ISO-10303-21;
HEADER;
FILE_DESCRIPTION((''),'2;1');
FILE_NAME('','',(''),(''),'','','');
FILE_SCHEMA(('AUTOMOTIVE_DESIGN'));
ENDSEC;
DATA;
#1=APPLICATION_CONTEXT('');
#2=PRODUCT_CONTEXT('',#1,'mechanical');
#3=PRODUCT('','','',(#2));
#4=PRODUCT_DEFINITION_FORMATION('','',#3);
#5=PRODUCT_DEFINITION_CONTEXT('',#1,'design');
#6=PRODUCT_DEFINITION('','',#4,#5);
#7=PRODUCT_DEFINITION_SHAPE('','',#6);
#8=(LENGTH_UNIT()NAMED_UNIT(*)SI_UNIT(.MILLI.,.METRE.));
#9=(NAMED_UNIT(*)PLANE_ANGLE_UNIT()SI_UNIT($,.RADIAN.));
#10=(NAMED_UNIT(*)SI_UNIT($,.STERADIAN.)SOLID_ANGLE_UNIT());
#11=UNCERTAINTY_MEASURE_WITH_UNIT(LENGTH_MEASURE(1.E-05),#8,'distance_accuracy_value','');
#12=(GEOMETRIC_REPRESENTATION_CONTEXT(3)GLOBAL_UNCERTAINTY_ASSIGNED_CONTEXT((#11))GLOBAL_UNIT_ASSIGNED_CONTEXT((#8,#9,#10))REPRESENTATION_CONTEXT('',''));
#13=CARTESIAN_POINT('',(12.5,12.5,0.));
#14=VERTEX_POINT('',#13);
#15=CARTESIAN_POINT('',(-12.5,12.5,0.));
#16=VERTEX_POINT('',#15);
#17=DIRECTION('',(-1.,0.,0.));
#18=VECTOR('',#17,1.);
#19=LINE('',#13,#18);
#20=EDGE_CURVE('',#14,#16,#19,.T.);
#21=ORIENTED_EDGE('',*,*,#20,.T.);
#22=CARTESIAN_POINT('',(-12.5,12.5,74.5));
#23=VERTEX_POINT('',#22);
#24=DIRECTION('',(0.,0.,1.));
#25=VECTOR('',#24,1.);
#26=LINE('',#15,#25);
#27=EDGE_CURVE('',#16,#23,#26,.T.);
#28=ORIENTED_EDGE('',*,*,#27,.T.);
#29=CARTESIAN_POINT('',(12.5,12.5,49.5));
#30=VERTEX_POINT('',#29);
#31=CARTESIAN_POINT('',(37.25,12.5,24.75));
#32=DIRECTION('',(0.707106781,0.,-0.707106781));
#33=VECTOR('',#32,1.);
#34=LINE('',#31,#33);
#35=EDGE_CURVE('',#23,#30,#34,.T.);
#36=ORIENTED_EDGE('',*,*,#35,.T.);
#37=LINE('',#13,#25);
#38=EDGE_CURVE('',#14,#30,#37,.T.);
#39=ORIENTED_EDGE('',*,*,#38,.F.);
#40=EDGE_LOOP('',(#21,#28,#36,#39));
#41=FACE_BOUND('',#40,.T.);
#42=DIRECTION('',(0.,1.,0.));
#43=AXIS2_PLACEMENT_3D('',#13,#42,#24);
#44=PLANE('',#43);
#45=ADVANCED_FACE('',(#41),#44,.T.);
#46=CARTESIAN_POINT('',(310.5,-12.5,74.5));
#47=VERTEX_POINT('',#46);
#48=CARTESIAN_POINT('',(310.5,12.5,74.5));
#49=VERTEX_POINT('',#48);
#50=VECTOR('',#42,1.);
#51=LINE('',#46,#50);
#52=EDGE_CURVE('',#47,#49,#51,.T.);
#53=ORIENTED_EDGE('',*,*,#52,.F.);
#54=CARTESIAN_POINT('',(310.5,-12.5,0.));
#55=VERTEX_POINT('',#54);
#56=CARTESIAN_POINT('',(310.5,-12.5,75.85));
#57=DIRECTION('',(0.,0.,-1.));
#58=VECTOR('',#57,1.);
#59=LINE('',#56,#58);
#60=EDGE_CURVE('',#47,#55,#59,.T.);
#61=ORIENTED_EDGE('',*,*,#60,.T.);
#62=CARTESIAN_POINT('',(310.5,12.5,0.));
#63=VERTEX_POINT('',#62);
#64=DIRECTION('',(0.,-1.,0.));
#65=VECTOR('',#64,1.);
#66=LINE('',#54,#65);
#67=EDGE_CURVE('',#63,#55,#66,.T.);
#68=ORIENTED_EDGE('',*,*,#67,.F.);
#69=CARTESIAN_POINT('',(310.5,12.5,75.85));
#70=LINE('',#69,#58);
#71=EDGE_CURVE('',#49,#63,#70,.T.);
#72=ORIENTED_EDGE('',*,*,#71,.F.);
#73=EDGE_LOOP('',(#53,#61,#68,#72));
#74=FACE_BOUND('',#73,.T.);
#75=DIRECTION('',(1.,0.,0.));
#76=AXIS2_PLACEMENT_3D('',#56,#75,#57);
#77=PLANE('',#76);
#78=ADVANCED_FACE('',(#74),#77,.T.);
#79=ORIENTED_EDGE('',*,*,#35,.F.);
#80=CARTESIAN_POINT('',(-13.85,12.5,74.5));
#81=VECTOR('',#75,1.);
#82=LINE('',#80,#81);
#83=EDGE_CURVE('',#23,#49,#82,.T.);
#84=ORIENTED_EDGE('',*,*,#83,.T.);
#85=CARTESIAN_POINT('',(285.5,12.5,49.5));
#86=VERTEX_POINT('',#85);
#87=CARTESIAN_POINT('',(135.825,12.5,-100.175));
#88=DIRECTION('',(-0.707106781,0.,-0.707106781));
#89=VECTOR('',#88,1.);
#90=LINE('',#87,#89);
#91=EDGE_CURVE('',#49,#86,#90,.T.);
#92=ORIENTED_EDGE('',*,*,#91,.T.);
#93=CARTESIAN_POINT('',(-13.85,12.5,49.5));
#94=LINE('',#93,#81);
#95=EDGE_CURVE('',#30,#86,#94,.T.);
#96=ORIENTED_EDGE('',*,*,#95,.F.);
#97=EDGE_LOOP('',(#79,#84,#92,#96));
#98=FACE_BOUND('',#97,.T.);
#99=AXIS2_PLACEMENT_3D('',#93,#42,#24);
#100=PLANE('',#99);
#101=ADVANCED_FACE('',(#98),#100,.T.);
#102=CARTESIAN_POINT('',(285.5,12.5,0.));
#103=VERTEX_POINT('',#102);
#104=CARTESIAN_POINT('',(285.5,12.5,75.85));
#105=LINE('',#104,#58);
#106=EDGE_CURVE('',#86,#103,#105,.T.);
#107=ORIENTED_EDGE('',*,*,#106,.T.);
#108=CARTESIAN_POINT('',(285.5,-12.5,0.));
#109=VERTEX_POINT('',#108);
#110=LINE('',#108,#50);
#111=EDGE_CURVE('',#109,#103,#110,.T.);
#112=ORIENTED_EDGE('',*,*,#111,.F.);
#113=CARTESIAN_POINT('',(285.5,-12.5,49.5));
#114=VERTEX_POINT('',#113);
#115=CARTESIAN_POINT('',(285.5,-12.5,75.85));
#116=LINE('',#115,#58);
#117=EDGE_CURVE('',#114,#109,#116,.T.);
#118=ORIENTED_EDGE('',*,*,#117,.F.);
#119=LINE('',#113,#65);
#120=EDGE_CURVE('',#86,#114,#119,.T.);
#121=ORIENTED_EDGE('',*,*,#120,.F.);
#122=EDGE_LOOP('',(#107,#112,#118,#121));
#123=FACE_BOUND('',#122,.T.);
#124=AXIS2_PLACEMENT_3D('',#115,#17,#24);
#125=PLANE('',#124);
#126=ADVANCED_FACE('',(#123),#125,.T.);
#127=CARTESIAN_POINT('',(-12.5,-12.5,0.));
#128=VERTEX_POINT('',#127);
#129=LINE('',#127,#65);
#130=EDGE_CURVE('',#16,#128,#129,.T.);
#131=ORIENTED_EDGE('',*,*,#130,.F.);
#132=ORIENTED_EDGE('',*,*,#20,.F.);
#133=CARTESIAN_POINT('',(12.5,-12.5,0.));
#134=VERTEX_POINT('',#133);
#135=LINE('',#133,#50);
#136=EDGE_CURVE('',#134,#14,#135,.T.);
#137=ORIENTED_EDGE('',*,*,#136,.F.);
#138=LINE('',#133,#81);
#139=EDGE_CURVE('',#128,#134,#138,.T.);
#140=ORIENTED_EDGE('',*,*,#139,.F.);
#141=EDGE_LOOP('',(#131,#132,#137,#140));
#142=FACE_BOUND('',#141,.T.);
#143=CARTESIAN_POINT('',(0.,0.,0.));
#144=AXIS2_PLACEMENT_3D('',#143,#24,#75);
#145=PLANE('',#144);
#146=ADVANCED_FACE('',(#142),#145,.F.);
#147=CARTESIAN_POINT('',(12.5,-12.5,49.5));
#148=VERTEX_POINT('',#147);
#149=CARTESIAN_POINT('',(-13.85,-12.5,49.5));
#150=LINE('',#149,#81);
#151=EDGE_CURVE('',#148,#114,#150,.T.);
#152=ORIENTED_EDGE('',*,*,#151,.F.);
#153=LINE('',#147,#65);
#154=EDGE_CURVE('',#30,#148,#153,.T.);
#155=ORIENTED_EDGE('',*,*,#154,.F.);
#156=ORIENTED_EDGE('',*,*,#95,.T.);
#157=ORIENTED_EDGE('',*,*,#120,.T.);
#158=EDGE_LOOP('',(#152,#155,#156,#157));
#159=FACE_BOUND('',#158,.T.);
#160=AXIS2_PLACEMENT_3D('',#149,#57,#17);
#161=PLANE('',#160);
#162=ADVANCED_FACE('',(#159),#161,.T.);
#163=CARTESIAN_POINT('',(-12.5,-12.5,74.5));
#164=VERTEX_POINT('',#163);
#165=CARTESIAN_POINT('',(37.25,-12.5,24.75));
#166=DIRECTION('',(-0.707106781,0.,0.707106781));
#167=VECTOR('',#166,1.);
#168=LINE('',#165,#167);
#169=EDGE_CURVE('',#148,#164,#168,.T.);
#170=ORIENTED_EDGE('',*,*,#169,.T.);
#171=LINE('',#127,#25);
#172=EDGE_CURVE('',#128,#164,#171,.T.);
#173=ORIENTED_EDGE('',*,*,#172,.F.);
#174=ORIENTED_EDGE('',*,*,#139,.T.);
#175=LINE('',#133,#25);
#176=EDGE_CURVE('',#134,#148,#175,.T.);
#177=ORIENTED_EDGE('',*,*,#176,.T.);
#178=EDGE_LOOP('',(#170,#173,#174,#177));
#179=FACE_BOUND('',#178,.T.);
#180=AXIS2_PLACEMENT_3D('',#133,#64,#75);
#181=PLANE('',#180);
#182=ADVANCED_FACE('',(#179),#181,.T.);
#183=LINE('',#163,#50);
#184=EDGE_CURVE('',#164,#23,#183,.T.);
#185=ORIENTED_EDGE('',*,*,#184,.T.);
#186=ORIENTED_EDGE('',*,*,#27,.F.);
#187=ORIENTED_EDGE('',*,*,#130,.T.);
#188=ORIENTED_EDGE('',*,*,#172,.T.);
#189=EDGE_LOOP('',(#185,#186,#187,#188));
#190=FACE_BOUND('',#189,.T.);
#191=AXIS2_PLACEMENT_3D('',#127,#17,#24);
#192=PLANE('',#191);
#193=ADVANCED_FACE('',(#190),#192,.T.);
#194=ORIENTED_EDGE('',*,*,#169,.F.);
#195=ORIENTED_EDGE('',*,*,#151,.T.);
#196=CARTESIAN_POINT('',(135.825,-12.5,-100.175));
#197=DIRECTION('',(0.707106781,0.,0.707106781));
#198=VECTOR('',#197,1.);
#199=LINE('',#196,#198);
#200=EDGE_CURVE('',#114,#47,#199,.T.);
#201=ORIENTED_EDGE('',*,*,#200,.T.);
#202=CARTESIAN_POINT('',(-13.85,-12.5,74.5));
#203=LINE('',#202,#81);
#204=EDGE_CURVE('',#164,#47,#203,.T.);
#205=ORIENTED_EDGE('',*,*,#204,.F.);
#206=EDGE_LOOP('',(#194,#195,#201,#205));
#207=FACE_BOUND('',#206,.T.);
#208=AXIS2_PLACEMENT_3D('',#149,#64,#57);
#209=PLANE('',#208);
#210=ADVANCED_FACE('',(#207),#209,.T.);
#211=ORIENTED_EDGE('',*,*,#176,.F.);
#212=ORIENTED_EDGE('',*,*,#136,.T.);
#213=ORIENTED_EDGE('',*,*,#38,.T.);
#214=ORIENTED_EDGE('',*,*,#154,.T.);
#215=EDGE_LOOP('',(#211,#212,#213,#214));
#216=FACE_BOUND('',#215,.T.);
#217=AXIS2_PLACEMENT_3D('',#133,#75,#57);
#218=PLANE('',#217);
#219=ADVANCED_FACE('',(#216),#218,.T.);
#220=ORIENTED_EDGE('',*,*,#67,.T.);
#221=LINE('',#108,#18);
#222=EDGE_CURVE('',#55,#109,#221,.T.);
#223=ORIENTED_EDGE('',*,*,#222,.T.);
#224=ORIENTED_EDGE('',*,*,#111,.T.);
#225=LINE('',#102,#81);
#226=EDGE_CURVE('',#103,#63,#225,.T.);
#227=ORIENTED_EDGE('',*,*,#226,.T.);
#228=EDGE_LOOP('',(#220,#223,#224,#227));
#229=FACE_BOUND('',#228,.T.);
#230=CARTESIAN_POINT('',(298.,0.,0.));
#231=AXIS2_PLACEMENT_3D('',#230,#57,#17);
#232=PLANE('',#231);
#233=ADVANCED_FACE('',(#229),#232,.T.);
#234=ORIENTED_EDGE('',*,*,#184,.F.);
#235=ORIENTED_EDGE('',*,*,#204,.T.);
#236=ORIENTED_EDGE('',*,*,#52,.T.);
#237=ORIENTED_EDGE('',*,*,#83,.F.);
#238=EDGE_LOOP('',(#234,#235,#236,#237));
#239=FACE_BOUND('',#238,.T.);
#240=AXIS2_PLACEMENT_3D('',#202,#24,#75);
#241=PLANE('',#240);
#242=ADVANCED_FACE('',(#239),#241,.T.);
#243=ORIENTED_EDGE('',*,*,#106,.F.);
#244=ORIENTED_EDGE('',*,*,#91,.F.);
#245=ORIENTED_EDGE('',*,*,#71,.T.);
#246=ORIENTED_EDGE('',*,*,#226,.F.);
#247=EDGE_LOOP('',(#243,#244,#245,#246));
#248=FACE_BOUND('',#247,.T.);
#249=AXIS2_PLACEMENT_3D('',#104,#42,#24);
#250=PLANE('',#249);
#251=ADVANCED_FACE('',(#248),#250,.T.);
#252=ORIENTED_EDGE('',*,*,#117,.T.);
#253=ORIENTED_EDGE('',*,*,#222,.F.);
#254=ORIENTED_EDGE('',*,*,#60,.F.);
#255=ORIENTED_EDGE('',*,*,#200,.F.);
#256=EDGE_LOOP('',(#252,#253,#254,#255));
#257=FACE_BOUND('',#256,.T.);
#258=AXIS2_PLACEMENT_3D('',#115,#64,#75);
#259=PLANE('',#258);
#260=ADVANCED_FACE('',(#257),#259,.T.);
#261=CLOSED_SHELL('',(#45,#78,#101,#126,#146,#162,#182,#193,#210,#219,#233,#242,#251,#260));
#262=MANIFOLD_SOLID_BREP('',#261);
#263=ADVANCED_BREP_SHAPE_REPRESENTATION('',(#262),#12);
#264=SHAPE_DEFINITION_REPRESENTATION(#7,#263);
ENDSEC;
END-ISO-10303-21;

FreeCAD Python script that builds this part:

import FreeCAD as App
import Part
import Sketcher
from FreeCAD import Vector

doc = App.newDocument("Part")
body = doc.addObject("PartDesign::Body", "Body")

# Sketch on XY plane
sketch1 = body.newObject("Sketcher::SketchObject", "Sketch")
sketch1.AttachmentSupport = (doc.getObject("XY_Plane"), [""])
sketch1.MapMode = "FlatFace"
sketch1.addGeometry([
    Part.LineSegment(Vector(-12, 12, 0), Vector(-12, -12, 0)),
    Part.LineSegment(Vector(-12, -12, 0), Vector(12, -12, 0)),
    Part.LineSegment(Vector(12, -12, 0), Vector(12, 12, 0)),
    Part.LineSegment(Vector(12, 12, 0), Vector(-12, 12, 0)),
], False)
sketch1.addConstraint([
    Sketcher.Constraint("Coincident", 0, 2, 1, 1),
    Sketcher.Constraint("Coincident", 1, 2, 2, 1),
    Sketcher.Constraint("Coincident", 2, 2, 3, 1),
    Sketcher.Constraint("Coincident", 3, 2, 0, 1),
    Sketcher.Constraint("Vertical", 0),
    Sketcher.Constraint("Horizontal", 1),
    Sketcher.Constraint("Vertical", 2),
    Sketcher.Constraint("Horizontal", 3),
    Sketcher.Constraint("Symmetric", 0, 2, 2, 2, -1, 1),
    Sketcher.Constraint("Equal", 3, 0),
    Sketcher.Constraint("DistanceX", 1, 1, 1, 2, 25.0),
])

# Sketch on XZ plane
sketch2 = body.newObject("Sketcher::SketchObject", "Sketch001")
sketch2.AttachmentSupport = (doc.getObject("XZ_Plane"), [""])
sketch2.MapMode = "FlatFace"
sketch2.addGeometry([
    Part.LineSegment(Vector(0, 0, 0), Vector(0, 62, 0)),
    Part.LineSegment(Vector(0, 62, 0), Vector(298, 62, 0)),
    Part.LineSegment(Vector(298, 62, 0), Vector(298, 0, 0)),
], False)
sketch2.addConstraint([
    Sketcher.Constraint("Coincident", 0, 2, 1, 1),
    Sketcher.Constraint("Coincident", 1, 2, 2, 1),
    Sketcher.Constraint("Vertical", 0),
    Sketcher.Constraint("Horizontal", 1),
    Sketcher.Constraint("Vertical", 2),
    Sketcher.Constraint("Coincident", 0, 1, -1, 1),
    Sketcher.Constraint("PointOnObject", 2, 2, -1),
    Sketcher.Constraint("DistanceX", 1, 1, 1, 2, 298.0),
    Sketcher.Constraint("DistanceY", 0, 1, 0, 2, 62.0),
])
doc.recompute()

additivepipe = body.newObject("PartDesign::AdditivePipe", "AdditivePipe")
additivepipe.Profile = sketch1
additivepipe.Spine = (sketch2, ["Edge1", "Edge2", "Edge3"])
additivepipe.Transition = "Right corner"

doc.recompute()
